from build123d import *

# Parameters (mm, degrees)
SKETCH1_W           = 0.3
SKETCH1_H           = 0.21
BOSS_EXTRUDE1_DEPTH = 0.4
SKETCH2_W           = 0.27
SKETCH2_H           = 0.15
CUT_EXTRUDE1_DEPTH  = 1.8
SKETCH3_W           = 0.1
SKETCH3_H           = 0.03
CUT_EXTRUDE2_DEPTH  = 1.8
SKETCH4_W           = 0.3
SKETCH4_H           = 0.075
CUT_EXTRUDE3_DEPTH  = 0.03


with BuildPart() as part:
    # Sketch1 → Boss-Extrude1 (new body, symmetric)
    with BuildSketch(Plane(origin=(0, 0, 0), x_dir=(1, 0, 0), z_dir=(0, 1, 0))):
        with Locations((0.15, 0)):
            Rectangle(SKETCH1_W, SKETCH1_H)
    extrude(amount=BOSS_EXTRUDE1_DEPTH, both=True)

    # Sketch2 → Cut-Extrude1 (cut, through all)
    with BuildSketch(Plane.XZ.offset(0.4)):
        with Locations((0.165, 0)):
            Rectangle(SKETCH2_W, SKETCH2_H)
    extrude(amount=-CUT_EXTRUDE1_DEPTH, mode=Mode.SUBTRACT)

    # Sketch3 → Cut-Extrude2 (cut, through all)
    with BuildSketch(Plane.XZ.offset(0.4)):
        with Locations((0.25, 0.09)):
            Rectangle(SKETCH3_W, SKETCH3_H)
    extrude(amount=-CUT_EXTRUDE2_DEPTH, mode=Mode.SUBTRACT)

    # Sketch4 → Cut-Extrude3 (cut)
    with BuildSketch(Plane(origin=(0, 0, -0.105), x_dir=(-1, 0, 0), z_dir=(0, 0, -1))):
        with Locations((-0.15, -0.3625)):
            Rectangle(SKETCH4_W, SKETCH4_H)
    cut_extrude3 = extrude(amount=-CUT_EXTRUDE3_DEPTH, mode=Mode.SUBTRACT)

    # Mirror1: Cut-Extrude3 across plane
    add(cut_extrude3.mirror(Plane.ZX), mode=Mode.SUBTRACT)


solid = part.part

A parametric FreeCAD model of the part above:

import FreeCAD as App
import Part
import Sketcher

V = App.Vector
Q = App.Units.Quantity

doc = App.newDocument("Part")
body = doc.addObject("PartDesign::Body", "Body")

# Sketch on XZ plane
sketch1 = body.newObject("Sketcher::SketchObject", "Sketch")
sketch1.AttachmentSupport = (doc.getObject("XZ_Plane"), [""])
sketch1.MapMode = "FlatFace"
sketch1.addGeometry(Part.LineSegment(V(0, -0.1, 0), V(0, 0.1, 0)), False)
sketch1.addGeometry(Part.LineSegment(V(0, 0.1, 0), V(0.3, 0.1, 0)), False)
sketch1.addGeometry(Part.LineSegment(V(0.3, 0.1, 0), V(0.3, -0.1, 0)), False)
sketch1.addGeometry(Part.LineSegment(V(0.3, -0.1, 0), V(0, -0.1, 0)), False)
sketch1.addConstraint(Sketcher.Constraint("Coincident", 0, 2, 1, 1))
sketch1.addConstraint(Sketcher.Constraint("Coincident", 1, 2, 2, 1))
sketch1.addConstraint(Sketcher.Constraint("Coincident", 2, 2, 3, 1))
sketch1.addConstraint(Sketcher.Constraint("Coincident", 3, 2, 0, 1))
sketch1.addConstraint(Sketcher.Constraint("Vertical", 0))
sketch1.addConstraint(Sketcher.Constraint("Horizontal", 1))
sketch1.addConstraint(Sketcher.Constraint("Vertical", 2))
sketch1.addConstraint(Sketcher.Constraint("Horizontal", 3))
sketch1.addConstraint(Sketcher.Constraint("Symmetric", 0, 2, 3, 2, -1, 1))
sketch1.addConstraint(Sketcher.Constraint("DistanceX", 1, 1, 1, 2, Q("0.3 mm")))
sketch1.addConstraint(Sketcher.Constraint("DistanceY", 0, 1, 0, 2, Q("0.21 mm")))
pad1 = body.newObject("PartDesign::Pad", "Pad")
pad1.Profile = sketch1
pad1.Length = 0.8
pad1.Midplane = True

# Sketch on XZ plane
sketch2 = body.newObject("Sketcher::SketchObject", "Sketch001")
sketch2.AttachmentSupport = (doc.getObject("XZ_Plane"), [""])
sketch2.MapMode = "FlatFace"
sketch2.AttachmentOffset = App.Placement(V(0, 0, 0.4), App.Rotation())
sketch2.addGeometry(Part.LineSegment(V(0.03, 0.07, 0), V(0.03, -0.07, 0)), False)
sketch2.addGeometry(Part.LineSegment(V(0.03, -0.07, 0), V(0.3, -0.07, 0)), False)
sketch2.addGeometry(Part.LineSegment(V(0.3, -0.07, 0), V(0.3, 0.07, 0)), False)
sketch2.addGeometry(Part.LineSegment(V(0.3, 0.07, 0), V(0.03, 0.07, 0)), False)
sketch2.addConstraint(Sketcher.Constraint("Coincident", 0, 2, 1, 1))
sketch2.addConstraint(Sketcher.Constraint("Coincident", 1, 2, 2, 1))
sketch2.addConstraint(Sketcher.Constraint("Coincident", 2, 2, 3, 1))
sketch2.addConstraint(Sketcher.Constraint("Coincident", 3, 2, 0, 1))
sketch2.addConstraint(Sketcher.Constraint("Vertical", 0))
sketch2.addConstraint(Sketcher.Constraint("Horizontal", 1))
sketch2.addConstraint(Sketcher.Constraint("Vertical", 2))
sketch2.addConstraint(Sketcher.Constraint("Horizontal", 3))
sketch2.addConstraint(Sketcher.Constraint("DistanceX", 1, 1, 1, 2, Q("0.27 mm")))
sketch2.addConstraint(Sketcher.Constraint("DistanceY", 0, 2, 0, 1, Q("0.15 mm")))
sketch2.addConstraint(Sketcher.Constraint("DistanceX", -1, 1, 1, 2, Q("0.3 mm")))
sketch2.addConstraint(Sketcher.Constraint("DistanceY", 0, 2, -1, 1, Q("0.075 mm")))
pocket1 = body.newObject("PartDesign::Pocket", "Pocket")
pocket1.Profile = sketch2
pocket1.Type = "ThroughAll"

# Sketch on XZ plane
sketch3 = body.newObject("Sketcher::SketchObject", "Sketch002")
sketch3.AttachmentSupport = (doc.getObject("XZ_Plane"), [""])
sketch3.MapMode = "FlatFace"
sketch3.AttachmentOffset = App.Placement(V(0, 0, 0.4), App.Rotation())
sketch3.addGeometry(Part.LineSegment(V(0.2, 0.105, 0), V(0.2, 0.075, 0)), False)
sketch3.addGeometry(Part.LineSegment(V(0.2, 0.075, 0), V(0.3, 0.075, 0)), False)
sketch3.addGeometry(Part.LineSegment(V(0.3, 0.075, 0), V(0.3, 0.105, 0)), False)
sketch3.addGeometry(Part.LineSegment(V(0.3, 0.105, 0), V(0.2, 0.105, 0)), False)
sketch3.addConstraint(Sketcher.Constraint("Coincident", 0, 2, 1, 1))
sketch3.addConstraint(Sketcher.Constraint("Coincident", 1, 2, 2, 1))
sketch3.addConstraint(Sketcher.Constraint("Coincident", 2, 2, 3, 1))
sketch3.addConstraint(Sketcher.Constraint("Coincident", 3, 2, 0, 1))
sketch3.addConstraint(Sketcher.Constraint("Vertical", 0))
sketch3.addConstraint(Sketcher.Constraint("Horizontal", 1))
sketch3.addConstraint(Sketcher.Constraint("Vertical", 2))
sketch3.addConstraint(Sketcher.Constraint("Horizontal", 3))
sketch3.addConstraint(Sketcher.Constraint("DistanceX", 1, 1, 1, 2, Q("0.1 mm")))
sketch3.addConstraint(Sketcher.Constraint("DistanceY", 0, 2, 0, 1, Q("0.03 mm")))
sketch3.addConstraint(Sketcher.Constraint("DistanceX", -1, 1, 0, 2, Q("0.2 mm")))
sketch3.addConstraint(Sketcher.Constraint("DistanceY", -1, 1, 0, 2, Q("0.075 mm")))
pocket2 = body.newObject("PartDesign::Pocket", "Pocket001")
pocket2.Profile = sketch3
pocket2.Type = "ThroughAll"

# Sketch on XY plane
sketch4 = body.newObject("Sketcher::SketchObject", "Sketch003")
sketch4.AttachmentSupport = (doc.getObject("XY_Plane"), [""])
sketch4.MapMode = "FlatFace"
sketch4.AttachmentOffset = App.Placement(V(0, 0, -0.105), App.Rotation())
sketch4.addGeometry(Part.LineSegment(V(0.3, -0.33, 0), V(0.3, -0.4, 0)), False)
sketch4.addGeometry(Part.LineSegment(V(0.3, -0.4, 0), V(0, -0.4, 0)), False)
sketch4.addGeometry(Part.LineSegment(V(0, -0.4, 0), V(0, -0.33, 0)), False)
sketch4.addGeometry(Part.LineSegment(V(0, -0.33, 0), V(0.3, -0.33, 0)), False)
sketch4.addConstraint(Sketcher.Constraint("Coincident", 0, 2, 1, 1))
sketch4.addConstraint(Sketcher.Constraint("Coincident", 1, 2, 2, 1))
sketch4.addConstraint(Sketcher.Constraint("Coincident", 2, 2, 3, 1))
sketch4.addConstraint(Sketcher.Constraint("Coincident", 3, 2, 0, 1))
sketch4.addConstraint(Sketcher.Constraint("Vertical", 0))
sketch4.addConstraint(Sketcher.Constraint("Horizontal", 1))
sketch4.addConstraint(Sketcher.Constraint("Vertical", 2))
sketch4.addConstraint(Sketcher.Constraint("Horizontal", 3))
sketch4.addConstraint(Sketcher.Constraint("PointOnObject", 1, 2, -2))
sketch4.addConstraint(Sketcher.Constraint("DistanceX", 1, 2, 1, 1, Q("0.3 mm")))
sketch4.addConstraint(Sketcher.Constraint("DistanceY", 0, 2, -1, 1, Q("0.4 mm")))
sketch4.addConstraint(Sketcher.Constraint("DistanceY", 0, 2, 0, 1, Q("0.075 mm")))
pocket3 = body.newObject("PartDesign::Pocket", "Pocket002")
pocket3.Profile = sketch4
pocket3.Length = 0.03
pocket3.Reversed = True
doc.recompute()

mirrored = body.newObject("PartDesign::Mirrored", "Mirrored")
mirrored.Originals = [pocket3]
mirrored.MirrorPlane = (doc.getObject("XZ_Plane"), [""])
body.Tip = mirrored

doc.recompute()
